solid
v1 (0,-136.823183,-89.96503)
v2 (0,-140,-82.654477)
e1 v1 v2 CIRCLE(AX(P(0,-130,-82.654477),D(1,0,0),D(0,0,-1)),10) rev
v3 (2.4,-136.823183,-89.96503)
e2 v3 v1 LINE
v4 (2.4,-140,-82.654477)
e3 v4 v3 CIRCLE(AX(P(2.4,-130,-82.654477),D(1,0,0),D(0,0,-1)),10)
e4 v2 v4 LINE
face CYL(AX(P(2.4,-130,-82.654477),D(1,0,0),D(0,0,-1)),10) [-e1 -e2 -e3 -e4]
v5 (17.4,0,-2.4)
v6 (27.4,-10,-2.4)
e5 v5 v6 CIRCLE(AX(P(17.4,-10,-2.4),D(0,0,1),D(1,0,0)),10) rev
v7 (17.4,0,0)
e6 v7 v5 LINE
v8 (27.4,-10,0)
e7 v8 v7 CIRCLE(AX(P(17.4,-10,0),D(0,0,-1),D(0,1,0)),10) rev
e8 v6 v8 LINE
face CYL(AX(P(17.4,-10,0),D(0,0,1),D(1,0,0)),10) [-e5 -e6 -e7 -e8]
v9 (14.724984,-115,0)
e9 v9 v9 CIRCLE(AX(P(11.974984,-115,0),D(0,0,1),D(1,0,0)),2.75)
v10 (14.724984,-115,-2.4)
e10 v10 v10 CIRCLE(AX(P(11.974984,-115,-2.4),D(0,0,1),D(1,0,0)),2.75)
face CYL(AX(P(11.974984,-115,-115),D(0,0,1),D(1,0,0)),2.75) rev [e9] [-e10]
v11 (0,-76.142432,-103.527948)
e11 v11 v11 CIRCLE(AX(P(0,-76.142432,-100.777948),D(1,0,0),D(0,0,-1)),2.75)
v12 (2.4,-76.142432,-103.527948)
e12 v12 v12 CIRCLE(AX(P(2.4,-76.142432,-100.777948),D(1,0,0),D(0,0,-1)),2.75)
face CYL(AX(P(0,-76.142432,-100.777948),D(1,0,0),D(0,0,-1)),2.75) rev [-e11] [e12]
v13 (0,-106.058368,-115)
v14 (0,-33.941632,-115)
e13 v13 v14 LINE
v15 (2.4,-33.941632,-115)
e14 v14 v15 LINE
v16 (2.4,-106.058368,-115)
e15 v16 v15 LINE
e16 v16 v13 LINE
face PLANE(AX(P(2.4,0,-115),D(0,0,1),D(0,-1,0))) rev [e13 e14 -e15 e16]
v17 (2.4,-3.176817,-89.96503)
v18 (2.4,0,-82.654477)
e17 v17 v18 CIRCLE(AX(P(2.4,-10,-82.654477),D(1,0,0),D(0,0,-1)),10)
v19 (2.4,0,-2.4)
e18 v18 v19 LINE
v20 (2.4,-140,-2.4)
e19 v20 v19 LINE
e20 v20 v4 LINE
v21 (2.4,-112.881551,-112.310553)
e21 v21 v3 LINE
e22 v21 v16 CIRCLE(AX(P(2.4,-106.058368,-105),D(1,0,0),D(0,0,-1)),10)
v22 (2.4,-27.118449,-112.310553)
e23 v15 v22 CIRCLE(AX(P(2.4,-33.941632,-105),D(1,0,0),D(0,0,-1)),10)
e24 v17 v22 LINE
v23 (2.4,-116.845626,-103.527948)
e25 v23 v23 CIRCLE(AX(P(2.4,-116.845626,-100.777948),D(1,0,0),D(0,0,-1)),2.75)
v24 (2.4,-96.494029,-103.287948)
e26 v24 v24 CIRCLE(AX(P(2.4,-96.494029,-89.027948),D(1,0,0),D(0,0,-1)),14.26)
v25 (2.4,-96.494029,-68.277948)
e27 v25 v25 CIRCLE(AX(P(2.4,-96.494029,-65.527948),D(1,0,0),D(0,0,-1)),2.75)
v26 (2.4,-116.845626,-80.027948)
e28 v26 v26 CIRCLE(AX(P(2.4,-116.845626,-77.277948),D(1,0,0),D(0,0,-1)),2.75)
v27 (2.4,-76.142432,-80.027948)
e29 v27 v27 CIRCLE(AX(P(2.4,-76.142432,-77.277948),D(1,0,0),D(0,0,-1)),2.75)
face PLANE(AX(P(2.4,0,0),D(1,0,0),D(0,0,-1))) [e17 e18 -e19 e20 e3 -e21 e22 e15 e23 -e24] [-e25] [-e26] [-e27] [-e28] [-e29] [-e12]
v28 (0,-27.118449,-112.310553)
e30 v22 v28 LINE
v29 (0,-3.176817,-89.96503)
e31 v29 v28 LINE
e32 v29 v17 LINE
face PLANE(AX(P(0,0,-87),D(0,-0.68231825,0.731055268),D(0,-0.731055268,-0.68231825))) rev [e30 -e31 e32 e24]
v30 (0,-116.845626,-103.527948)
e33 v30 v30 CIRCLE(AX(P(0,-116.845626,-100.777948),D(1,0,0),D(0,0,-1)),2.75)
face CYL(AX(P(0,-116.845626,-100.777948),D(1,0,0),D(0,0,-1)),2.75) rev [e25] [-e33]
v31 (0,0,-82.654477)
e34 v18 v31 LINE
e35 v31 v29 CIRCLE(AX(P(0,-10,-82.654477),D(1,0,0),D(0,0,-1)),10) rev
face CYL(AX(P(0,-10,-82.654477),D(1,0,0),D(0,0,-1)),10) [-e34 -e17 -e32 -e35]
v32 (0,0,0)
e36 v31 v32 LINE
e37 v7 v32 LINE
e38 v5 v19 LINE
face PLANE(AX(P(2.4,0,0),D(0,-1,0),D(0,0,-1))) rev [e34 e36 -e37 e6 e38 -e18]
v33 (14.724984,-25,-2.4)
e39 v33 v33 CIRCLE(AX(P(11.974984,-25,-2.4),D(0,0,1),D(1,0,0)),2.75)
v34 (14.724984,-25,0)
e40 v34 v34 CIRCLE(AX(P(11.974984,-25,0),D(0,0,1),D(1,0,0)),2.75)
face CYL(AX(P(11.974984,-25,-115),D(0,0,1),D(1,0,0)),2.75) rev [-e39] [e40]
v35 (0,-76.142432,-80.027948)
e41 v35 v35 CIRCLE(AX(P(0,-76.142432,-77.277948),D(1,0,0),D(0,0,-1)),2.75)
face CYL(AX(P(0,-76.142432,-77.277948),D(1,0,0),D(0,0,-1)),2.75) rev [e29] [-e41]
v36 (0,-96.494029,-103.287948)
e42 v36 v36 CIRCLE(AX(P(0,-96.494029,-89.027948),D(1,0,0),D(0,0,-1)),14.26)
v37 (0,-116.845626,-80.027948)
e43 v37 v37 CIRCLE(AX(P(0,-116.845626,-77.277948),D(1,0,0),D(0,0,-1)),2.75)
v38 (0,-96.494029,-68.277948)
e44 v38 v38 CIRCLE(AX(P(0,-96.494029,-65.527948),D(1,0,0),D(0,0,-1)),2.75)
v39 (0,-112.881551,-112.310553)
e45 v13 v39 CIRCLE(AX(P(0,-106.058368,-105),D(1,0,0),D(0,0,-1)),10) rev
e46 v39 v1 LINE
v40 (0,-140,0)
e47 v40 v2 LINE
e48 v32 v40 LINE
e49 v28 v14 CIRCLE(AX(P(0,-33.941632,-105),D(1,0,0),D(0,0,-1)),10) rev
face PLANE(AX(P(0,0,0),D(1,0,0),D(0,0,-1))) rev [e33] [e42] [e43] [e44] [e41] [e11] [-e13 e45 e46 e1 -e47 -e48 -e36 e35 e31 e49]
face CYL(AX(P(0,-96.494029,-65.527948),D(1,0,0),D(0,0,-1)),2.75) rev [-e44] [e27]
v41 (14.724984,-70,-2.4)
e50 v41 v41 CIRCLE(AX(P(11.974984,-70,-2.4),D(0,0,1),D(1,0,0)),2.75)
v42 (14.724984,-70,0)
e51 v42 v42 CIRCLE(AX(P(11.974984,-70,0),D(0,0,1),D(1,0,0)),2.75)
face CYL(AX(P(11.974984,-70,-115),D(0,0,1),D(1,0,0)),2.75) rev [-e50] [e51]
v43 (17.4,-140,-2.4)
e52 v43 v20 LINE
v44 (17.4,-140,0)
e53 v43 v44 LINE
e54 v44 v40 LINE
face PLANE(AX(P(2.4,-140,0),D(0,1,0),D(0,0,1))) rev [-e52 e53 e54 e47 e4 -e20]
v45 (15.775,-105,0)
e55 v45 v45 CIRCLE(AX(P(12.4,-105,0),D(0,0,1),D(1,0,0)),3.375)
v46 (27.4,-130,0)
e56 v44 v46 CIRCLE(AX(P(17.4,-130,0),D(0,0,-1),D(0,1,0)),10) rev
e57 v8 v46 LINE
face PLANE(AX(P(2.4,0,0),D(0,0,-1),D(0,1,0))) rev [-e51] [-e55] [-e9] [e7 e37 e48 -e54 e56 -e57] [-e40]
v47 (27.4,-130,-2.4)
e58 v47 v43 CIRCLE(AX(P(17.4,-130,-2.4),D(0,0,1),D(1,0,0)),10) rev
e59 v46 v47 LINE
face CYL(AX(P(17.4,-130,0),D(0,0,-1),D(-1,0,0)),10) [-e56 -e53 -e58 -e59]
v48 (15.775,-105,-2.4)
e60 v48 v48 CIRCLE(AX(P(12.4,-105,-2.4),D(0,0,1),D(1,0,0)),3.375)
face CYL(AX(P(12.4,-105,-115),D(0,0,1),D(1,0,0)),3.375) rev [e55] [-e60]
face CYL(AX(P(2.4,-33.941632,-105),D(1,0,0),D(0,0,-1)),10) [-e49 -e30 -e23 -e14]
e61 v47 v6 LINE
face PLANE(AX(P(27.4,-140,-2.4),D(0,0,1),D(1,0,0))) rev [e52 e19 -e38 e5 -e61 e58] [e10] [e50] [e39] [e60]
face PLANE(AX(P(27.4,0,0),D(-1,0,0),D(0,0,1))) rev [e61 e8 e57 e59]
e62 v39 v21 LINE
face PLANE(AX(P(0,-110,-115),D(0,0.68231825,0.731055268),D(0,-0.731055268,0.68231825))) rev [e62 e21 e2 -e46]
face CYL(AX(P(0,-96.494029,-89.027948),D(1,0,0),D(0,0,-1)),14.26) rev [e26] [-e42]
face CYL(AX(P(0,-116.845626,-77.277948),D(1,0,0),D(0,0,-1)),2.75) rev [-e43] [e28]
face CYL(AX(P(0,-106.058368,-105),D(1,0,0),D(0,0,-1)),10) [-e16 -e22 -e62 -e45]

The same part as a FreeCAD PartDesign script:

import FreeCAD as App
import Part
import Sketcher
from FreeCAD import Vector
Q = App.Units.Quantity


def edges_at(feature, points):
    """Names of the edges that pass closest to the given points."""
    edges = feature.Shape.Edges
    near = lambda p: min(range(len(edges)), key=lambda i: edges[i].distToShape(Part.Vertex(*p))[0])
    return sorted({f"Edge{near(p) + 1}" for p in points})

doc = App.newDocument("Part")
body = doc.addObject("PartDesign::Body", "Body")

# Sketch on YZ plane
sketch1 = body.newObject("Sketcher::SketchObject", "Sketch")
sketch1.AttachmentSupport = (doc.getObject("YZ_Plane"), [""])
sketch1.MapMode = "FlatFace"
sketch1.addGeometry(Part.LineSegment(Vector(0, 0, 0), Vector(-140, 0, 0)), False)
sketch1.addGeometry(Part.LineSegment(Vector(-140, 0, 0), Vector(-140, -115, 0)), False)
sketch1.addGeometry(Part.LineSegment(Vector(-140, -115, 0), Vector(0, -115, 0)), False)
sketch1.addGeometry(Part.LineSegment(Vector(0, -115, 0), Vector(0, 0, 0)), False)
sketch1.addConstraint(Sketcher.Constraint("Coincident", 0, 2, 1, 1))
sketch1.addConstraint(Sketcher.Constraint("Coincident", 1, 2, 2, 1))
sketch1.addConstraint(Sketcher.Constraint("Coincident", 2, 2, 3, 1))
sketch1.addConstraint(Sketcher.Constraint("Coincident", 3, 2, 0, 1))
sketch1.addConstraint(Sketcher.Constraint("Horizontal", 0))
sketch1.addConstraint(Sketcher.Constraint("Vertical", 1))
sketch1.addConstraint(Sketcher.Constraint("Horizontal", 2))
sketch1.addConstraint(Sketcher.Constraint("Vertical", 3))
sketch1.addConstraint(Sketcher.Constraint("Coincident", 3, 2, -1, 1))
sketch1.addConstraint(Sketcher.Constraint("DistanceX", 0, 2, 0, 1, Q("140 mm")))
sketch1.addConstraint(Sketcher.Constraint("DistanceY", 1, 2, 1, 1, Q("115 mm")))
pad1 = body.newObject("PartDesign::Pad", "Pad")
pad1.Profile = sketch1
pad1.Length = 2.4

# Sketch on YZ plane
sketch2 = body.newObject("Sketcher::SketchObject", "Sketch001")
sketch2.AttachmentSupport = (doc.getObject("YZ_Plane"), [""])
sketch2.MapMode = "FlatFace"
sketch2.AttachmentOffset = App.Placement(Vector(0, 0, 2.4), App.Rotation())
sketch2.addGeometry(Part.LineSegment(Vector(0, -87, 0), Vector(-30, -115, 0)), False)
sketch2.addGeometry(Part.LineSegment(Vector(-30, -115, 0), Vector(-32.505406, -142.6162, 0)), False)
sketch2.addGeometry(Part.LineSegment(Vector(-32.505406, -142.6162, 0), Vector(14.875556, -142.6162, 0)), False)
sketch2.addGeometry(Part.LineSegment(Vector(14.875556, -142.6162, 0), Vector(0, -87, 0)), False)
sketch2.addGeometry(Part.LineSegment(Vector(-110, -115, 0), Vector(-140, -87, 0)), False)
sketch2.addGeometry(Part.LineSegment(Vector(-140, -87, 0), Vector(-152.66111, -87, 0)), False)
sketch2.addGeometry(Part.LineSegment(Vector(-152.66111, -87, 0), Vector(-152.66111, -136.310005, 0)), False)
sketch2.addGeometry(Part.LineSegment(Vector(-152.66111, -136.310005, 0), Vector(-110, -115, 0)), False)
sketch2.addConstraint(Sketcher.Constraint("Coincident", 0, 2, 1, 1))
sketch2.addConstraint(Sketcher.Constraint("Coincident", 1, 2, 2, 1))
sketch2.addConstraint(Sketcher.Constraint("Coincident", 2, 2, 3, 1))
sketch2.addConstraint(Sketcher.Constraint("Coincident", 3, 2, 0, 1))
sketch2.addConstraint(Sketcher.Constraint("Coincident", 4, 2, 5, 1))
sketch2.addConstraint(Sketcher.Constraint("Coincident", 5, 2, 6, 1))
sketch2.addConstraint(Sketcher.Constraint("Coincident", 6, 2, 7, 1))
sketch2.addConstraint(Sketcher.Constraint("Coincident", 7, 2, 4, 1))
sketch2.addConstraint(Sketcher.Constraint("Horizontal", 2))
sketch2.addConstraint(Sketcher.Constraint("Horizontal", 5))
sketch2.addConstraint(Sketcher.Constraint("Vertical", 6))
sketch2.addConstraint(Sketcher.Constraint("PointOnObject", 3, 2, -2))
sketch2.addConstraint(Sketcher.Constraint("Horizontal", 3, 2, 4, 2))
sketch2.addConstraint(Sketcher.Constraint("Horizontal", 0, 2, 7, 2))
sketch2.addConstraint(Sketcher.Constraint("Equal", 0, 4))
sketch2.addConstraint(Sketcher.Constraint("DistanceX", 0, 2, -1, 1, Q("30 mm")))
sketch2.addConstraint(Sketcher.Constraint("DistanceY", 0, 2, -1, 1, Q("115 mm")))
sketch2.addConstraint(Sketcher.Constraint("DistanceY", 3, 2, -1, 1, Q("87 mm")))
sketch2.addConstraint(Sketcher.Constraint("DistanceX", 4, 2, -1, 1, Q("140 mm")))
sketch2.addConstraint(Sketcher.Constraint("DistanceX", 5, 2, 5, 1, Q("12.66111 mm")))
sketch2.addConstraint(Sketcher.Constraint("DistanceY", 1, 2, -1, 1, Q("142.6162 mm")))
sketch2.addConstraint(Sketcher.Constraint("DistanceX", 2, 1, 2, 2, Q("47.380962 mm")))
sketch2.addConstraint(Sketcher.Constraint("DistanceY", 6, 2, 6, 1, Q("49.310005 mm")))
sketch2.addConstraint(Sketcher.Constraint("Distance", 1, Q("27.729615 mm")))
pocket1 = body.newObject("PartDesign::Pocket", "Pocket")
pocket1.Profile = sketch2
pocket1.Type = "ThroughAll"
doc.recompute()

fillet = body.newObject("PartDesign::Fillet", "Fillet")
fillet.Base = (pocket1, edges_at(pocket1, [
    (1.2, 0, -87),
    (1.2, -30, -115),
    (1.2, -110, -115),
    (1.2, -140, -87),
]))
fillet.Radius = 10

# Sketch on YZ plane
sketch3 = body.newObject("Sketcher::SketchObject", "Sketch002")
sketch3.AttachmentSupport = (doc.getObject("YZ_Plane"), [""])
sketch3.MapMode = "FlatFace"
sketch3.AttachmentOffset = App.Placement(Vector(0, 0, 2.4), App.Rotation())
sketch3.addGeometry(Part.LineSegment(Vector(0, 0, 0), Vector(-140, 0, 0)), False)
sketch3.addGeometry(Part.LineSegment(Vector(-140, 0, 0), Vector(-140, -2.4, 0)), False)
sketch3.addGeometry(Part.LineSegment(Vector(-140, -2.4, 0), Vector(0, -2.4, 0)), False)
sketch3.addGeometry(Part.LineSegment(Vector(0, -2.4, 0), Vector(0, 0, 0)), False)
sketch3.addConstraint(Sketcher.Constraint("Coincident", 0, 2, 1, 1))
sketch3.addConstraint(Sketcher.Constraint("Coincident", 1, 2, 2, 1))
sketch3.addConstraint(Sketcher.Constraint("Coincident", 2, 2, 3, 1))
sketch3.addConstraint(Sketcher.Constraint("Coincident", 3, 2, 0, 1))
sketch3.addConstraint(Sketcher.Constraint("Horizontal", 0))
sketch3.addConstraint(Sketcher.Constraint("Vertical", 1))
sketch3.addConstraint(Sketcher.Constraint("Horizontal", 2))
sketch3.addConstraint(Sketcher.Constraint("Vertical", 3))
sketch3.addConstraint(Sketcher.Constraint("Coincident", 3, 2, -1, 1))
sketch3.addConstraint(Sketcher.Constraint("DistanceX", 0, 2, 0, 1, Q("140 mm")))
sketch3.addConstraint(Sketcher.Constraint("DistanceY", 1, 2, 1, 1, Q("2.4 mm")))
pad2 = body.newObject("PartDesign::Pad", "Pad001")
pad2.Profile = sketch3
pad2.Length = 25
doc.recompute()

fillet2 = body.newObject("PartDesign::Fillet", "Fillet001")
fillet2.Base = (pad2, edges_at(pad2, [(27.4, -140, -1.2), (27.4, 0, -1.2)]))
fillet2.Radius = 10

# Sketch on XY plane
sketch4 = body.newObject("Sketcher::SketchObject", "Sketch003")
sketch4.AttachmentSupport = (doc.getObject("XY_Plane"), [""])
sketch4.MapMode = "FlatFace"
sketch4.addGeometry(Part.Circle(Vector(11.974984, -70, 0), Vector(0, 0, 1), 2.75), False)
sketch4.addGeometry(Part.Circle(Vector(11.974984, -25, 0), Vector(0, 0, 1), 2.75), False)
sketch4.addGeometry(Part.Circle(Vector(11.974984, -115, 0), Vector(0, 0, 1), 2.75), False)
sketch4.addConstraint(Sketcher.Constraint("Equal", 0, 1))
sketch4.addConstraint(Sketcher.Constraint("Equal", 1, 2))
sketch4.addConstraint(Sketcher.Constraint("Vertical", 0, 3, 1, 3))
sketch4.addConstraint(Sketcher.Constraint("Vertical", 1, 3, 2, 3))
sketch4.addConstraint(Sketcher.Constraint("Diameter", 0, Q("5.5 mm")))
sketch4.addConstraint(Sketcher.Constraint("DistanceY", 0, 3, -1, 1, Q("70 mm")))
sketch4.addConstraint(Sketcher.Constraint("DistanceY", 1, 3, -1, 1, Q("25 mm")))
sketch4.addConstraint(Sketcher.Constraint("DistanceY", 2, 3, -1, 1, Q("115 mm")))
sketch4.addConstraint(Sketcher.Constraint("DistanceX", -1, 1, 0, 3, Q("11.974984 mm")))
pocket2 = body.newObject("PartDesign::Pocket", "Pocket001")
pocket2.Profile = sketch4
pocket2.Type = "ThroughAll"

# Sketch on YZ plane
sketch5 = body.newObject("Sketcher::SketchObject", "Sketch004")
sketch5.AttachmentSupport = (doc.getObject("YZ_Plane"), [""])
sketch5.MapMode = "FlatFace"
sketch5.AttachmentOffset = App.Placement(Vector(0, 0, 2.4), App.Rotation())
sketch5.addGeometry(Part.Circle(Vector(-96.494029, -89.027948, 0), Vector(0, 0, 1), 14.26), False)
sketch5.addGeometry(Part.Circle(Vector(-76.142432, -77.277948, 0), Vector(0, 0, 1), 2.75), False)
sketch5.addGeometry(Part.Circle(Vector(-76.142432, -100.777948, 0), Vector(0, 0, 1), 2.75), False)
sketch5.addGeometry(Part.Circle(Vector(-116.845626, -100.777948, 0), Vector(0, 0, 1), 2.75), False)
sketch5.addGeometry(Part.Circle(Vector(-116.845626, -77.277948, 0), Vector(0, 0, 1), 2.75), False)
sketch5.addGeometry(Part.Circle(Vector(-96.494029, -65.527948, 0), Vector(0, 0, 1), 2.75), False)
sketch5.addConstraint(Sketcher.Constraint("Equal", 1, 2))
sketch5.addConstraint(Sketcher.Constraint("Equal", 2, 3))
sketch5.addConstraint(Sketcher.Constraint("Equal", 3, 4))
sketch5.addConstraint(Sketcher.Constraint("Equal", 4, 5))
sketch5.addConstraint(Sketcher.Constraint("Horizontal", 2, 3, 3, 3))
sketch5.addConstraint(Sketcher.Constraint("Horizontal", 1, 3, 4, 3))
sketch5.addConstraint(Sketcher.Constraint("Vertical", 1, 3, 2, 3))
sketch5.addConstraint(Sketcher.Constraint("Vertical", 3, 3, 4, 3))
sketch5.addConstraint(Sketcher.Constraint("Vertical", 0, 3, 5, 3))
sketch5.addConstraint(Sketcher.Constraint("Diameter", 1, Q("5.5 mm")))
sketch5.addConstraint(Sketcher.Constraint("Diameter", 0, Q("28.52 mm")))
sketch5.addConstraint(Sketcher.Constraint("DistanceY", 2, 3, 1, 3, Q("23.5 mm")))
sketch5.addConstraint(Sketcher.Constraint("DistanceY", 0, 3, 5, 3, Q("23.5 mm")))
sketch5.addConstraint(Sketcher.Constraint("DistanceY", 0, 3, 1, 3, Q("11.75 mm")))
sketch5.addConstraint(Sketcher.Constraint("DistanceX", 0, 3, -1, 1, Q("96.494029 mm")))
sketch5.addConstraint(Sketcher.Constraint("DistanceY", 0, 3, -1, 1, Q("89.027948 mm")))
sketch5.addConstraint(Sketcher.Constraint("DistanceX", 1, 3, -1, 1, Q("76.142432 mm")))
sketch5.addConstraint(Sketcher.Constraint("DistanceX", 3, 3, -1, 1, Q("116.845626 mm")))
pocket3 = body.newObject("PartDesign::Pocket", "Pocket002")
pocket3.Profile = sketch5
pocket3.Type = "ThroughAll"

# Sketch on XY plane
sketch6 = body.newObject("Sketcher::SketchObject", "Sketch005")
sketch6.AttachmentSupport = (doc.getObject("XY_Plane"), [""])
sketch6.MapMode = "FlatFace"
sketch6.addGeometry(Part.Circle(Vector(12.4, -105, 0), Vector(0, 0, 1), 3.375), False)
sketch6.addConstraint(Sketcher.Constraint("Diameter", 0, Q("6.75 mm")))
sketch6.addConstraint(Sketcher.Constraint("DistanceY", 0, 3, -1, 1, Q("105 mm")))
sketch6.addConstraint(Sketcher.Constraint("DistanceX", -1, 1, 0, 3, Q("12.4 mm")))
pocket4 = body.newObject("PartDesign::Pocket", "Pocket003")
pocket4.Profile = sketch6
pocket4.Type = "ThroughAll"

doc.recompute()
